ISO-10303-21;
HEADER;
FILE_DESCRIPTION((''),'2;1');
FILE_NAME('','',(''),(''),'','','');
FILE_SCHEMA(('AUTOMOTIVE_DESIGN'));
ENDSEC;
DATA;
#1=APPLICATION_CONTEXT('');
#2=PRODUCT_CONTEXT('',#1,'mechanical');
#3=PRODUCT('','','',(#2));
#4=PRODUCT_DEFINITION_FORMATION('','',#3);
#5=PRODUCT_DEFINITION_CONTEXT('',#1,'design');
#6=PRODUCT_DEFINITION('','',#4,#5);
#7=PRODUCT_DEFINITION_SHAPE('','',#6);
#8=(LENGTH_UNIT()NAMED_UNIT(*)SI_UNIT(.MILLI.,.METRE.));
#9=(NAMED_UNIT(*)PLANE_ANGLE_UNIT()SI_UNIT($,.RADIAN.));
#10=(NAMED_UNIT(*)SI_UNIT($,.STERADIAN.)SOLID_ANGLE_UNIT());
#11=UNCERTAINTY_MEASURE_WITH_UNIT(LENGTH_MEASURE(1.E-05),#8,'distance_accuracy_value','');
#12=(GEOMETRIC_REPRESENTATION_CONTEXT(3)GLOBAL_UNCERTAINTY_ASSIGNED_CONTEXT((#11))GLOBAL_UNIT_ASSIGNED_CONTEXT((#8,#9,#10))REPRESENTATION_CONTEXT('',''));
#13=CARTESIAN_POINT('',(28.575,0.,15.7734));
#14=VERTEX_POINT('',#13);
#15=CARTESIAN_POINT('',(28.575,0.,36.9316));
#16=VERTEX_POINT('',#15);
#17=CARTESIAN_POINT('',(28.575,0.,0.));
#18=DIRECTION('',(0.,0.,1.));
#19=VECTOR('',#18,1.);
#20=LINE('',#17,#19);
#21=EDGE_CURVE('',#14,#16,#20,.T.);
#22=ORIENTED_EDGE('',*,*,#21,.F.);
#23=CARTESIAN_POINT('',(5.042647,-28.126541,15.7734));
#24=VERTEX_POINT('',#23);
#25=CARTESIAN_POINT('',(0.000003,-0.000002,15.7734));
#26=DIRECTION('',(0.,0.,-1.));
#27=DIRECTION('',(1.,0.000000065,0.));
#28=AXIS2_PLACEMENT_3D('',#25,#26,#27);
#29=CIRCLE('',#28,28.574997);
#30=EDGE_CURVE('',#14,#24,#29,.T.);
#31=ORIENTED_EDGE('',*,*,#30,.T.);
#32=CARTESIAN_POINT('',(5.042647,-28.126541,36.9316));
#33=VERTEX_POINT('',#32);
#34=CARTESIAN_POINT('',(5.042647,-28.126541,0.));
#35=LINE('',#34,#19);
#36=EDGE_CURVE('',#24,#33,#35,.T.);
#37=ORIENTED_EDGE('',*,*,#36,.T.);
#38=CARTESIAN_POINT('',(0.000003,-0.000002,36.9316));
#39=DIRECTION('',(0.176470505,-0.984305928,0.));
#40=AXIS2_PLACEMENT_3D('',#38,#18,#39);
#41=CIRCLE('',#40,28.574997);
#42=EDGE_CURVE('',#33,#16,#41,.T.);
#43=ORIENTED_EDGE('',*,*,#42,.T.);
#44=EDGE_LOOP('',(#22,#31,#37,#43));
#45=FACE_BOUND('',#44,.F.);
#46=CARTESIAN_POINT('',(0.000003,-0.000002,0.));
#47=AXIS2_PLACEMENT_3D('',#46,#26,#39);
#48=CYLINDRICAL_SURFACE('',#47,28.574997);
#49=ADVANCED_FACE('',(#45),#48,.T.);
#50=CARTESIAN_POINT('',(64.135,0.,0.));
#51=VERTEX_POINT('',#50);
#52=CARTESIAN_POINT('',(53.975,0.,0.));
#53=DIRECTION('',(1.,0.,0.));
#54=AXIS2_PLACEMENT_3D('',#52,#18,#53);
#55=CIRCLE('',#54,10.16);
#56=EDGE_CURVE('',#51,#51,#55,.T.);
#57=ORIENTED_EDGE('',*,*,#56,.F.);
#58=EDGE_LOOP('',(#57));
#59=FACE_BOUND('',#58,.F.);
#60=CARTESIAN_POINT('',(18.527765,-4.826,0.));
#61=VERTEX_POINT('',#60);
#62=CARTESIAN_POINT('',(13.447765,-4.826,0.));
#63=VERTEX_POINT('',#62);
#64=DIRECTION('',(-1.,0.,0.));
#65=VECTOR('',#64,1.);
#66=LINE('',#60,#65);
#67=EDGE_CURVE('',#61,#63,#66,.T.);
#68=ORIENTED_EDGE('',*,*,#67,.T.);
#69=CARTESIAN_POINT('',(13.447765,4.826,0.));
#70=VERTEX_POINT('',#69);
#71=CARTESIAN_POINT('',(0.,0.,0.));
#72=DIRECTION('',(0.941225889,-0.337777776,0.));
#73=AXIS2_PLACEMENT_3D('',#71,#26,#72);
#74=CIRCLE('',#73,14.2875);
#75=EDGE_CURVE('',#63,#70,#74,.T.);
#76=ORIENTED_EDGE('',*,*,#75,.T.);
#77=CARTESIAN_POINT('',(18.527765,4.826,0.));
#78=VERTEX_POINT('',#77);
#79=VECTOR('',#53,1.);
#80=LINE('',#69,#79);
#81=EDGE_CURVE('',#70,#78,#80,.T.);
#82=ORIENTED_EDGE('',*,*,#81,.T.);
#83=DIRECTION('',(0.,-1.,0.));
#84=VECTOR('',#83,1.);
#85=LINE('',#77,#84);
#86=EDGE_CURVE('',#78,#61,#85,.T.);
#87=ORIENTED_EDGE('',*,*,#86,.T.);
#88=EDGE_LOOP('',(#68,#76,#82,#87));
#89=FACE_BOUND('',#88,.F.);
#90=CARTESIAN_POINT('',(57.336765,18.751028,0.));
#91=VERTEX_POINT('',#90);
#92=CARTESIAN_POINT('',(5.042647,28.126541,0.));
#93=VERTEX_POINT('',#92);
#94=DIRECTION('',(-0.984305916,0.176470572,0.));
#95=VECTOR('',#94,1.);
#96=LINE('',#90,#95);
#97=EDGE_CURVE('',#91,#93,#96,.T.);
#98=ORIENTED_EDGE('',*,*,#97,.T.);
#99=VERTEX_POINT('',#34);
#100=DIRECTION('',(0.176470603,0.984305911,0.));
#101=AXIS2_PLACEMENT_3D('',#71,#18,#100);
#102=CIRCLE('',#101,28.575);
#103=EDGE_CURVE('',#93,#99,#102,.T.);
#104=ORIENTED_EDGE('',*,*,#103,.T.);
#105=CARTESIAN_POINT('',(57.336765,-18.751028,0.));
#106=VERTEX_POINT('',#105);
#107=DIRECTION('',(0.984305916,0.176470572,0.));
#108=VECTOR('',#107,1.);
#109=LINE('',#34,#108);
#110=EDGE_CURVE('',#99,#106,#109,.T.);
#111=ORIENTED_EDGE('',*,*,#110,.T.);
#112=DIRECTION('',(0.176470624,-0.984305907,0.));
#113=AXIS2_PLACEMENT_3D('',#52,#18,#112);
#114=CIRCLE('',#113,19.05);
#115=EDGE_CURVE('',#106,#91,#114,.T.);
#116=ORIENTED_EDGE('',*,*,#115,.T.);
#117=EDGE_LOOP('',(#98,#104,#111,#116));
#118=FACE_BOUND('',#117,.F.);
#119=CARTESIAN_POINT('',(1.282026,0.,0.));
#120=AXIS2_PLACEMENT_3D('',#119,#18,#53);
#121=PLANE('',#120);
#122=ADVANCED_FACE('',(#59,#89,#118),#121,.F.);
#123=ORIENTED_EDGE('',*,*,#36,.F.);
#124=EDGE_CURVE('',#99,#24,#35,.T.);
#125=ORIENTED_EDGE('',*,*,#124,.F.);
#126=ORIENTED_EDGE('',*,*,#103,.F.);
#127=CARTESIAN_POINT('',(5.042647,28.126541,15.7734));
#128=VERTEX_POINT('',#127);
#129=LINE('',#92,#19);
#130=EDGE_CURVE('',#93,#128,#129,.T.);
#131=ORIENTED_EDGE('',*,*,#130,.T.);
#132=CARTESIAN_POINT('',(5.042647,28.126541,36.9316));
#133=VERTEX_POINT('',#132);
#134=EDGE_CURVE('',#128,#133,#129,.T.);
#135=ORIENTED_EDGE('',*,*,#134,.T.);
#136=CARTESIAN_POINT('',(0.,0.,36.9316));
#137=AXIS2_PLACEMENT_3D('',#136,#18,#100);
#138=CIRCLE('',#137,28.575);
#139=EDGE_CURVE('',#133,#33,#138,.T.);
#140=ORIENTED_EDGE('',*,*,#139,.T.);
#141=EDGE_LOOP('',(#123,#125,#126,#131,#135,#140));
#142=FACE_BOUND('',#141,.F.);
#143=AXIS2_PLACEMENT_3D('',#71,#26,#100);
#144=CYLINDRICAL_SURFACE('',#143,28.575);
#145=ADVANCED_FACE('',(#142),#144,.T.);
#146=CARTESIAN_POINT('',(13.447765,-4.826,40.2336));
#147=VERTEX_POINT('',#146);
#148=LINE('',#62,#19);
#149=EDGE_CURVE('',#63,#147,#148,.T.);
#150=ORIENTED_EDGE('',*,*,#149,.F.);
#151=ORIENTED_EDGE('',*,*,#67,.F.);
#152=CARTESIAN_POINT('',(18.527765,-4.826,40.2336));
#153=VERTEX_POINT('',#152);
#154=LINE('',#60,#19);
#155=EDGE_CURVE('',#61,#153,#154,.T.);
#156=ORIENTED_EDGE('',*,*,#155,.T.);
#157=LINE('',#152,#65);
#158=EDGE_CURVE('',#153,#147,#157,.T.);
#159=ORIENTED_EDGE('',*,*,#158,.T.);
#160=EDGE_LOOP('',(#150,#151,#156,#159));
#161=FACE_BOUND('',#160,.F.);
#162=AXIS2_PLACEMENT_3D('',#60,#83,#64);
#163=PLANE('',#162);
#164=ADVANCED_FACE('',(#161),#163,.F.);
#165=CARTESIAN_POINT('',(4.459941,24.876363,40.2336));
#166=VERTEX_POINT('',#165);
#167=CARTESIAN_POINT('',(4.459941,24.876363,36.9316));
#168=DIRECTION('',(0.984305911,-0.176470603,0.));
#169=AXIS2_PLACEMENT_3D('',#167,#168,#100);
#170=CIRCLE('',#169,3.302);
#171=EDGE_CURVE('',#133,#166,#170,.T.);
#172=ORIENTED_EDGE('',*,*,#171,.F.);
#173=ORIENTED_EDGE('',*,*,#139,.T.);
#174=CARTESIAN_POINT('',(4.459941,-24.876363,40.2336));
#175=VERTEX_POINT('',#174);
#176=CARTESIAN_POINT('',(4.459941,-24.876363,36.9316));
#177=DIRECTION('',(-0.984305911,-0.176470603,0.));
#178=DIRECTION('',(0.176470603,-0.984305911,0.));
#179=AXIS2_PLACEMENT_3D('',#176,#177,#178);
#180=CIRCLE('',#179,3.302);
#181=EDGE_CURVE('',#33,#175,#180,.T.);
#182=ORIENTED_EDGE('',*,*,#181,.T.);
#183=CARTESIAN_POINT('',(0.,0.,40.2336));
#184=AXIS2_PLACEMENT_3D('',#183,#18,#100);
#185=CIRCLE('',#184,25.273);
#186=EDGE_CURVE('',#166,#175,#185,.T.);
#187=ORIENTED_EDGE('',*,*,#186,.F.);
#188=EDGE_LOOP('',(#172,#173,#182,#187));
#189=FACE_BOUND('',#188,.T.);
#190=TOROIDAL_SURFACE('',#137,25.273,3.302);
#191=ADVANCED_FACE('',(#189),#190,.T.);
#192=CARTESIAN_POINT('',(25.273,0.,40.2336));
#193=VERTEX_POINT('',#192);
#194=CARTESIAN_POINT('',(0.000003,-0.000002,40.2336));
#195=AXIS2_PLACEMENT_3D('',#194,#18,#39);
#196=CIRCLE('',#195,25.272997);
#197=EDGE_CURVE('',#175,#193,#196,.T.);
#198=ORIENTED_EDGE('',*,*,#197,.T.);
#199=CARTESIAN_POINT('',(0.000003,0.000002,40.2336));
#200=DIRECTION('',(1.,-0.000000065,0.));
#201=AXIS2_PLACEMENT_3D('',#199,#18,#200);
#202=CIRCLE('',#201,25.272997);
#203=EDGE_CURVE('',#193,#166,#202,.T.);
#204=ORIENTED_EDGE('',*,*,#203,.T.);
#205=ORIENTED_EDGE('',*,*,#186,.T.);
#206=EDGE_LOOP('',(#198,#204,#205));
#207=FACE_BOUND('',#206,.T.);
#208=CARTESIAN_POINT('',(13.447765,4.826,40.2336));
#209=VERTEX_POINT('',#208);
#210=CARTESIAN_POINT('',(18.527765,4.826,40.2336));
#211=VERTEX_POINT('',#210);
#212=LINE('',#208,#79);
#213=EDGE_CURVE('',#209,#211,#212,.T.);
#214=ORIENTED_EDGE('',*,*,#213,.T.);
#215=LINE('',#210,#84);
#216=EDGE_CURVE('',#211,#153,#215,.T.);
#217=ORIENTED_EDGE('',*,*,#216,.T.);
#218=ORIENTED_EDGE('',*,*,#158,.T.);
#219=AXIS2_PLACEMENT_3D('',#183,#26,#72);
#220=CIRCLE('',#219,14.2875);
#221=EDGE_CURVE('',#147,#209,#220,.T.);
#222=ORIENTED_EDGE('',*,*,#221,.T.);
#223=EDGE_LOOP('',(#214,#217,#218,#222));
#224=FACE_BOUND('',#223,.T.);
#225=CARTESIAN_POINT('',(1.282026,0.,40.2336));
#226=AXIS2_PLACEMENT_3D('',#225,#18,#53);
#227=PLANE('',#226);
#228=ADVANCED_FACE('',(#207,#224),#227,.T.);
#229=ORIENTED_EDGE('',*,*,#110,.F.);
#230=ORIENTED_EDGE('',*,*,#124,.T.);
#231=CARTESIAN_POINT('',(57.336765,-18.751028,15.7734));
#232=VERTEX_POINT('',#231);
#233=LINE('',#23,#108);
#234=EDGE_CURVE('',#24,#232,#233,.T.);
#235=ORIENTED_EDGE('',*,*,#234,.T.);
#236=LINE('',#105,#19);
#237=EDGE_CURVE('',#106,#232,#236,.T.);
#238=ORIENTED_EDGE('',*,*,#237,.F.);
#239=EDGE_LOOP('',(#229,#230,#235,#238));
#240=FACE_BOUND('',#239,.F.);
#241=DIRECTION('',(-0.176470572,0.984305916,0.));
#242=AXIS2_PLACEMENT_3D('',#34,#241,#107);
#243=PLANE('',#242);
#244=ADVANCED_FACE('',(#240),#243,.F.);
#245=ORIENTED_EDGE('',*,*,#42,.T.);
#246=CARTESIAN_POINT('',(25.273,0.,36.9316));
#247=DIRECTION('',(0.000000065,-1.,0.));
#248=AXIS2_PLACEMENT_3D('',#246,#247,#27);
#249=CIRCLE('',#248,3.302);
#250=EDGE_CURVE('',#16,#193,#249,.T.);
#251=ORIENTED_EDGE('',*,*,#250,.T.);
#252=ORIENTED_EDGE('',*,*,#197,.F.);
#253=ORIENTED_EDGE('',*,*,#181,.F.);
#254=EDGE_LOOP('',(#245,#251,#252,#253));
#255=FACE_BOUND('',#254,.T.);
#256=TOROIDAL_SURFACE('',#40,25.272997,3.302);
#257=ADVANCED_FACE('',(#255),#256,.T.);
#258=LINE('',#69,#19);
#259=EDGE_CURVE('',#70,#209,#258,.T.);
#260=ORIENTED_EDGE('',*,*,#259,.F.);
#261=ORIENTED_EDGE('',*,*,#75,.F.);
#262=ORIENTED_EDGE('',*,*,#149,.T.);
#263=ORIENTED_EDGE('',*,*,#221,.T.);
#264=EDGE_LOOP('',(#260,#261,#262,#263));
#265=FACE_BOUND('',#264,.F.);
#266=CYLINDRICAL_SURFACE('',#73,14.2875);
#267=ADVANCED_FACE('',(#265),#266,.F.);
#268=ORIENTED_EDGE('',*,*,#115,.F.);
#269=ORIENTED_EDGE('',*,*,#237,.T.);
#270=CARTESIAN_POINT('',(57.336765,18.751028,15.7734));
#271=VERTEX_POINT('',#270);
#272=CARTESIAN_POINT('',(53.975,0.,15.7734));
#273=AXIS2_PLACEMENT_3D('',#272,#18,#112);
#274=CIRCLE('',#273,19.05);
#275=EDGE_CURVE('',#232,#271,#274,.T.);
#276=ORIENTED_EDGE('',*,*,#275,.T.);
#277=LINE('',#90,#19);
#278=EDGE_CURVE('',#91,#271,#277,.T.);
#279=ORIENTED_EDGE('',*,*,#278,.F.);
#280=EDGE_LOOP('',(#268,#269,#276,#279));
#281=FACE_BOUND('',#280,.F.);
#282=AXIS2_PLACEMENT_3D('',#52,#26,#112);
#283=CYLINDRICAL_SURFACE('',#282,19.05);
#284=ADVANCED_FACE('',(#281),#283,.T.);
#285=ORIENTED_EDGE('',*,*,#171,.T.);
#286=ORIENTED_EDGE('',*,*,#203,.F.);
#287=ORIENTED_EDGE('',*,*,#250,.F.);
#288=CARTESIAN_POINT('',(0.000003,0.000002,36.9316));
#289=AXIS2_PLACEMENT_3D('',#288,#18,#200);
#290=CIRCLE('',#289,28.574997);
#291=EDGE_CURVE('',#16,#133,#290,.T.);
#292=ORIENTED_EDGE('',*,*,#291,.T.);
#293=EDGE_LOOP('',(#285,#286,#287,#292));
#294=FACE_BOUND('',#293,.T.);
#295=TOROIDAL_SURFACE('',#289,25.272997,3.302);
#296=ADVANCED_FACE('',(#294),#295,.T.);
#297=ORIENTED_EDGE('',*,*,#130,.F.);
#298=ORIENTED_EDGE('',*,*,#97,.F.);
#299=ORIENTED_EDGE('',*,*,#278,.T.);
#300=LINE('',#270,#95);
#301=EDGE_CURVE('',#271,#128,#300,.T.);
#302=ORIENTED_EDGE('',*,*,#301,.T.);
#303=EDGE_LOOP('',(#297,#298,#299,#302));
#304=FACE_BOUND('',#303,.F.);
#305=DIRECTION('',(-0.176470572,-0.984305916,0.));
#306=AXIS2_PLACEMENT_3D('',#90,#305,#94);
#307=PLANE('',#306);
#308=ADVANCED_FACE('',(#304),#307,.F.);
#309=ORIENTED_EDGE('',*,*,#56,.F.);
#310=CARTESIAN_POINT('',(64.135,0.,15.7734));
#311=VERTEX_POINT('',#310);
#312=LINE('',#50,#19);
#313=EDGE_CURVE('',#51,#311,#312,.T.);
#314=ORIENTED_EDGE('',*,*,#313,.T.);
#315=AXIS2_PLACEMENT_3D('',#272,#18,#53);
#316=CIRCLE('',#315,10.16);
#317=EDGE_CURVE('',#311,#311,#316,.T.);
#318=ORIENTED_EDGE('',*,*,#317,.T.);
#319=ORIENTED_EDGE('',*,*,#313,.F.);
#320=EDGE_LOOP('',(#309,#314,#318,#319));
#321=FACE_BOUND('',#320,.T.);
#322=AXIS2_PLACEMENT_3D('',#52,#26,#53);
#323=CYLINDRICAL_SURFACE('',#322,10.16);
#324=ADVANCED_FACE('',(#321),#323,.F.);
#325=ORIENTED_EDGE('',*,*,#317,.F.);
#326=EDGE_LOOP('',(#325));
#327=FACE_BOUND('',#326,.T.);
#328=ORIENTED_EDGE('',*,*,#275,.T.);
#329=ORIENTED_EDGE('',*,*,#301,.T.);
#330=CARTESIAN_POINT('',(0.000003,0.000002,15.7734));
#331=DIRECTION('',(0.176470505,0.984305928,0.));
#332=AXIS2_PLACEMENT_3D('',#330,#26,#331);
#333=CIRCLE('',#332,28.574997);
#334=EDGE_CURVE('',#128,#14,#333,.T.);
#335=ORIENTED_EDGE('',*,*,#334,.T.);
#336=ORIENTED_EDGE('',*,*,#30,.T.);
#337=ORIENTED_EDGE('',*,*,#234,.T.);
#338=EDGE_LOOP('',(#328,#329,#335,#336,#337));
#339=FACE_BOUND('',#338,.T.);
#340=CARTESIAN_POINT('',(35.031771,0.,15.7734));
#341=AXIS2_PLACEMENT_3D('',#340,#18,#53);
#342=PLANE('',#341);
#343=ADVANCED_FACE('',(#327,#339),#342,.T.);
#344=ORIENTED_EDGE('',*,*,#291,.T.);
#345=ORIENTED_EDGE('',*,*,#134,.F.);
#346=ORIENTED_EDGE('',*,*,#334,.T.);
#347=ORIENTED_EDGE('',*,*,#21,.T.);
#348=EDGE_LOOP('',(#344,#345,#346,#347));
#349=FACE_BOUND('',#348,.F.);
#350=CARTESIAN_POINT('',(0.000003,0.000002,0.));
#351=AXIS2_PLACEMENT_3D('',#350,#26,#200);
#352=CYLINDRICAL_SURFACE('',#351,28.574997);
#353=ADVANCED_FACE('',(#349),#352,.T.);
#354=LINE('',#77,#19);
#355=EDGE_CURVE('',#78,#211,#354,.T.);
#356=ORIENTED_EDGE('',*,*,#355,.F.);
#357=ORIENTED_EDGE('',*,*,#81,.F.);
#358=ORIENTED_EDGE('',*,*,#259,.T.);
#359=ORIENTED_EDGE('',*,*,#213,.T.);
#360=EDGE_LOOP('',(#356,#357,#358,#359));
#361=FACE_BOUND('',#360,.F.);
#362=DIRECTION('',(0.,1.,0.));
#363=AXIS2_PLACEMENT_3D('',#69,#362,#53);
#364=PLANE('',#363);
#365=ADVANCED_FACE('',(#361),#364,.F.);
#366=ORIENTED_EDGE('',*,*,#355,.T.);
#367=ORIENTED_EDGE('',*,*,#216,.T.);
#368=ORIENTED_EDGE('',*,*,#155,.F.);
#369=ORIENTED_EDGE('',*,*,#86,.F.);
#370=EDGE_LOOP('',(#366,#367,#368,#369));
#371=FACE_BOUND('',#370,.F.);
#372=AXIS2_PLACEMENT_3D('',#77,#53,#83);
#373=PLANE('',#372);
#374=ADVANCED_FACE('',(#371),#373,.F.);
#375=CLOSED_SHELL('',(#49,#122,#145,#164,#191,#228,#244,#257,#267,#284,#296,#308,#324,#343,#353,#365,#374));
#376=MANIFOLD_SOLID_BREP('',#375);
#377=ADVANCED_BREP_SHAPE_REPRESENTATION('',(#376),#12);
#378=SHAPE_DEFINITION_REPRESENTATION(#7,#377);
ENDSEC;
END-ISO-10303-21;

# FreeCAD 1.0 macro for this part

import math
import FreeCAD as App
import Part
import Sketcher
Q = App.Units.Quantity


def edges_at(feature, points):
    """Names of the edges that pass closest to the given points."""
    edges = feature.Shape.Edges
    near = lambda p: min(range(len(edges)), key=lambda i: edges[i].distToShape(Part.Vertex(*p))[0])
    return sorted({f"Edge{near(p) + 1}" for p in points})

doc = App.newDocument("Part")
body = doc.addObject("PartDesign::Body", "Body")

sketch1 = body.newObject("Sketcher::SketchObject", "Sketch")
sketch1.AttachmentSupport = (doc.getObject("XY_Plane"), [""])
sketch1.MapMode = "FlatFace"
sketch1.addGeometry(Part.LineSegment(App.Vector(5, -28, 0), App.Vector(57, -19, 0)), False)
sketch1.addGeometry(Part.ArcOfCircle(Part.Circle(App.Vector(54, 0, 0), App.Vector(0, 0, 1), 19), math.radians(-80), math.radians(80)), False)
sketch1.addGeometry(Part.LineSegment(App.Vector(57, 19, 0), App.Vector(5, 28, 0)), False)
sketch1.addGeometry(Part.ArcOfCircle(Part.Circle(App.Vector(0, 0, 0), App.Vector(0, 0, 1), 29), math.radians(0), math.radians(80)), False)
sketch1.addGeometry(Part.ArcOfCircle(Part.Circle(App.Vector(0, 0, 0), App.Vector(0, 0, 1), 29), math.radians(-80), math.radians(0)), False)
sketch1.addGeometry(Part.Circle(App.Vector(54, 0, 0), App.Vector(0, 0, 1), 10), False)
sketch1.addConstraint(Sketcher.Constraint("Tangent", 0, 2, 1, 1))
sketch1.addConstraint(Sketcher.Constraint("Tangent", 1, 2, 2, 1))
sketch1.addConstraint(Sketcher.Constraint("Tangent", 2, 2, 3, 2))
sketch1.addConstraint(Sketcher.Constraint("Tangent", 3, 1, 4, 2))
sketch1.addConstraint(Sketcher.Constraint("Tangent", 4, 1, 0, 1))
sketch1.addConstraint(Sketcher.Constraint("Coincident", 3, 3, -1, 1))
sketch1.addConstraint(Sketcher.Constraint("Coincident", 5, 3, 1, 3))
sketch1.addConstraint(Sketcher.Constraint("Equal", 3, 4))
sketch1.addConstraint(Sketcher.Constraint("PointOnObject", 1, 3, -1))
sketch1.addConstraint(Sketcher.Constraint("PointOnObject", 3, 1, -1))
sketch1.addConstraint(Sketcher.Constraint("Diameter", 5, Q("0.8 in")))
sketch1.addConstraint(Sketcher.Constraint("Radius", 1, Q("0.75 in")))
sketch1.addConstraint(Sketcher.Constraint("Radius", 3, Q("1.1249999 in")))
sketch1.addConstraint(Sketcher.Constraint("DistanceX", 3, 1, 1, 3, Q("1 in")))
pad1 = body.newObject("PartDesign::Pad", "Pad")
pad1.Profile = sketch1
pad1.Length = Q("0.621 in")

sketch2 = body.newObject("Sketcher::SketchObject", "Sketch001")
sketch2.AttachmentSupport = (doc.getObject("XY_Plane"), [""])
sketch2.MapMode = "FlatFace"
sketch2.addGeometry(Part.ArcOfCircle(Part.Circle(App.Vector(0, 0, 0), App.Vector(0, 0, 1), 29), math.radians(80), math.radians(280)), False)
sketch2.addGeometry(Part.ArcOfCircle(Part.Circle(App.Vector(0, 0, 0), App.Vector(0, 0, 1), 29), math.radians(-80), math.radians(0)), False)
sketch2.addGeometry(Part.ArcOfCircle(Part.Circle(App.Vector(0, 0, 0), App.Vector(0, 0, 1), 29), math.radians(0), math.radians(80)), False)
sketch2.addGeometry(Part.LineSegment(App.Vector(19, -5, 0), App.Vector(13, -5, 0)), False)
sketch2.addGeometry(Part.ArcOfCircle(Part.Circle(App.Vector(0, 0, 0), App.Vector(0, 0, 1), 14), math.radians(20), math.radians(340)), False)
sketch2.addGeometry(Part.LineSegment(App.Vector(13, 5, 0), App.Vector(19, 5, 0)), False)
sketch2.addGeometry(Part.LineSegment(App.Vector(19, 5, 0), App.Vector(19, -5, 0)), False)
sketch2.addConstraint(Sketcher.Constraint("Tangent", 0, 2, 1, 1))
sketch2.addConstraint(Sketcher.Constraint("Tangent", 1, 2, 2, 1))
sketch2.addConstraint(Sketcher.Constraint("Tangent", 2, 2, 0, 1))
sketch2.addConstraint(Sketcher.Constraint("Coincident", 3, 2, 4, 2))
sketch2.addConstraint(Sketcher.Constraint("Coincident", 4, 1, 5, 1))
sketch2.addConstraint(Sketcher.Constraint("Coincident", 5, 2, 6, 1))
sketch2.addConstraint(Sketcher.Constraint("Coincident", 6, 2, 3, 1))
sketch2.addConstraint(Sketcher.Constraint("Horizontal", 3))
sketch2.addConstraint(Sketcher.Constraint("Horizontal", 5))
sketch2.addConstraint(Sketcher.Constraint("Vertical", 6))
sketch2.addConstraint(Sketcher.Constraint("Coincident", 0, 3, -1, 1))
sketch2.addConstraint(Sketcher.Constraint("Coincident", 4, 3, -1, 1))
sketch2.addConstraint(Sketcher.Constraint("PointOnObject", 1, 2, -1))
sketch2.addConstraint(Sketcher.Constraint("Vertical", 0, 2, 2, 2))
sketch2.addConstraint(Sketcher.Constraint("Vertical", 3, 2, 4, 1))
sketch2.addConstraint(Sketcher.Constraint("DistanceX", 3, 2, 3, 1, Q("0.2 in")))
sketch2.addConstraint(Sketcher.Constraint("Radius", 0, Q("1.125 in")))
sketch2.addConstraint(Sketcher.Constraint("Radius", 4, Q("0.5625 in")))
sketch2.addConstraint(Sketcher.Constraint("DistanceY", 6, 2, 6, 1, Q("0.38 in")))
sketch2.addConstraint(Sketcher.Constraint("DistanceY", 0, 2, -1, 1, 28.126541))
pad2 = body.newObject("PartDesign::Pad", "Pad001")
pad2.Profile = sketch2
pad2.Length = Q("1.584 in")
doc.recompute()

fillet = body.newObject("PartDesign::Fillet", "Fillet")
fillet.Base = (pad2, edges_at(pad2, [(-28.575, 0, 40.234)]))
fillet.Radius = Q("0.13 in")

doc.recompute()
